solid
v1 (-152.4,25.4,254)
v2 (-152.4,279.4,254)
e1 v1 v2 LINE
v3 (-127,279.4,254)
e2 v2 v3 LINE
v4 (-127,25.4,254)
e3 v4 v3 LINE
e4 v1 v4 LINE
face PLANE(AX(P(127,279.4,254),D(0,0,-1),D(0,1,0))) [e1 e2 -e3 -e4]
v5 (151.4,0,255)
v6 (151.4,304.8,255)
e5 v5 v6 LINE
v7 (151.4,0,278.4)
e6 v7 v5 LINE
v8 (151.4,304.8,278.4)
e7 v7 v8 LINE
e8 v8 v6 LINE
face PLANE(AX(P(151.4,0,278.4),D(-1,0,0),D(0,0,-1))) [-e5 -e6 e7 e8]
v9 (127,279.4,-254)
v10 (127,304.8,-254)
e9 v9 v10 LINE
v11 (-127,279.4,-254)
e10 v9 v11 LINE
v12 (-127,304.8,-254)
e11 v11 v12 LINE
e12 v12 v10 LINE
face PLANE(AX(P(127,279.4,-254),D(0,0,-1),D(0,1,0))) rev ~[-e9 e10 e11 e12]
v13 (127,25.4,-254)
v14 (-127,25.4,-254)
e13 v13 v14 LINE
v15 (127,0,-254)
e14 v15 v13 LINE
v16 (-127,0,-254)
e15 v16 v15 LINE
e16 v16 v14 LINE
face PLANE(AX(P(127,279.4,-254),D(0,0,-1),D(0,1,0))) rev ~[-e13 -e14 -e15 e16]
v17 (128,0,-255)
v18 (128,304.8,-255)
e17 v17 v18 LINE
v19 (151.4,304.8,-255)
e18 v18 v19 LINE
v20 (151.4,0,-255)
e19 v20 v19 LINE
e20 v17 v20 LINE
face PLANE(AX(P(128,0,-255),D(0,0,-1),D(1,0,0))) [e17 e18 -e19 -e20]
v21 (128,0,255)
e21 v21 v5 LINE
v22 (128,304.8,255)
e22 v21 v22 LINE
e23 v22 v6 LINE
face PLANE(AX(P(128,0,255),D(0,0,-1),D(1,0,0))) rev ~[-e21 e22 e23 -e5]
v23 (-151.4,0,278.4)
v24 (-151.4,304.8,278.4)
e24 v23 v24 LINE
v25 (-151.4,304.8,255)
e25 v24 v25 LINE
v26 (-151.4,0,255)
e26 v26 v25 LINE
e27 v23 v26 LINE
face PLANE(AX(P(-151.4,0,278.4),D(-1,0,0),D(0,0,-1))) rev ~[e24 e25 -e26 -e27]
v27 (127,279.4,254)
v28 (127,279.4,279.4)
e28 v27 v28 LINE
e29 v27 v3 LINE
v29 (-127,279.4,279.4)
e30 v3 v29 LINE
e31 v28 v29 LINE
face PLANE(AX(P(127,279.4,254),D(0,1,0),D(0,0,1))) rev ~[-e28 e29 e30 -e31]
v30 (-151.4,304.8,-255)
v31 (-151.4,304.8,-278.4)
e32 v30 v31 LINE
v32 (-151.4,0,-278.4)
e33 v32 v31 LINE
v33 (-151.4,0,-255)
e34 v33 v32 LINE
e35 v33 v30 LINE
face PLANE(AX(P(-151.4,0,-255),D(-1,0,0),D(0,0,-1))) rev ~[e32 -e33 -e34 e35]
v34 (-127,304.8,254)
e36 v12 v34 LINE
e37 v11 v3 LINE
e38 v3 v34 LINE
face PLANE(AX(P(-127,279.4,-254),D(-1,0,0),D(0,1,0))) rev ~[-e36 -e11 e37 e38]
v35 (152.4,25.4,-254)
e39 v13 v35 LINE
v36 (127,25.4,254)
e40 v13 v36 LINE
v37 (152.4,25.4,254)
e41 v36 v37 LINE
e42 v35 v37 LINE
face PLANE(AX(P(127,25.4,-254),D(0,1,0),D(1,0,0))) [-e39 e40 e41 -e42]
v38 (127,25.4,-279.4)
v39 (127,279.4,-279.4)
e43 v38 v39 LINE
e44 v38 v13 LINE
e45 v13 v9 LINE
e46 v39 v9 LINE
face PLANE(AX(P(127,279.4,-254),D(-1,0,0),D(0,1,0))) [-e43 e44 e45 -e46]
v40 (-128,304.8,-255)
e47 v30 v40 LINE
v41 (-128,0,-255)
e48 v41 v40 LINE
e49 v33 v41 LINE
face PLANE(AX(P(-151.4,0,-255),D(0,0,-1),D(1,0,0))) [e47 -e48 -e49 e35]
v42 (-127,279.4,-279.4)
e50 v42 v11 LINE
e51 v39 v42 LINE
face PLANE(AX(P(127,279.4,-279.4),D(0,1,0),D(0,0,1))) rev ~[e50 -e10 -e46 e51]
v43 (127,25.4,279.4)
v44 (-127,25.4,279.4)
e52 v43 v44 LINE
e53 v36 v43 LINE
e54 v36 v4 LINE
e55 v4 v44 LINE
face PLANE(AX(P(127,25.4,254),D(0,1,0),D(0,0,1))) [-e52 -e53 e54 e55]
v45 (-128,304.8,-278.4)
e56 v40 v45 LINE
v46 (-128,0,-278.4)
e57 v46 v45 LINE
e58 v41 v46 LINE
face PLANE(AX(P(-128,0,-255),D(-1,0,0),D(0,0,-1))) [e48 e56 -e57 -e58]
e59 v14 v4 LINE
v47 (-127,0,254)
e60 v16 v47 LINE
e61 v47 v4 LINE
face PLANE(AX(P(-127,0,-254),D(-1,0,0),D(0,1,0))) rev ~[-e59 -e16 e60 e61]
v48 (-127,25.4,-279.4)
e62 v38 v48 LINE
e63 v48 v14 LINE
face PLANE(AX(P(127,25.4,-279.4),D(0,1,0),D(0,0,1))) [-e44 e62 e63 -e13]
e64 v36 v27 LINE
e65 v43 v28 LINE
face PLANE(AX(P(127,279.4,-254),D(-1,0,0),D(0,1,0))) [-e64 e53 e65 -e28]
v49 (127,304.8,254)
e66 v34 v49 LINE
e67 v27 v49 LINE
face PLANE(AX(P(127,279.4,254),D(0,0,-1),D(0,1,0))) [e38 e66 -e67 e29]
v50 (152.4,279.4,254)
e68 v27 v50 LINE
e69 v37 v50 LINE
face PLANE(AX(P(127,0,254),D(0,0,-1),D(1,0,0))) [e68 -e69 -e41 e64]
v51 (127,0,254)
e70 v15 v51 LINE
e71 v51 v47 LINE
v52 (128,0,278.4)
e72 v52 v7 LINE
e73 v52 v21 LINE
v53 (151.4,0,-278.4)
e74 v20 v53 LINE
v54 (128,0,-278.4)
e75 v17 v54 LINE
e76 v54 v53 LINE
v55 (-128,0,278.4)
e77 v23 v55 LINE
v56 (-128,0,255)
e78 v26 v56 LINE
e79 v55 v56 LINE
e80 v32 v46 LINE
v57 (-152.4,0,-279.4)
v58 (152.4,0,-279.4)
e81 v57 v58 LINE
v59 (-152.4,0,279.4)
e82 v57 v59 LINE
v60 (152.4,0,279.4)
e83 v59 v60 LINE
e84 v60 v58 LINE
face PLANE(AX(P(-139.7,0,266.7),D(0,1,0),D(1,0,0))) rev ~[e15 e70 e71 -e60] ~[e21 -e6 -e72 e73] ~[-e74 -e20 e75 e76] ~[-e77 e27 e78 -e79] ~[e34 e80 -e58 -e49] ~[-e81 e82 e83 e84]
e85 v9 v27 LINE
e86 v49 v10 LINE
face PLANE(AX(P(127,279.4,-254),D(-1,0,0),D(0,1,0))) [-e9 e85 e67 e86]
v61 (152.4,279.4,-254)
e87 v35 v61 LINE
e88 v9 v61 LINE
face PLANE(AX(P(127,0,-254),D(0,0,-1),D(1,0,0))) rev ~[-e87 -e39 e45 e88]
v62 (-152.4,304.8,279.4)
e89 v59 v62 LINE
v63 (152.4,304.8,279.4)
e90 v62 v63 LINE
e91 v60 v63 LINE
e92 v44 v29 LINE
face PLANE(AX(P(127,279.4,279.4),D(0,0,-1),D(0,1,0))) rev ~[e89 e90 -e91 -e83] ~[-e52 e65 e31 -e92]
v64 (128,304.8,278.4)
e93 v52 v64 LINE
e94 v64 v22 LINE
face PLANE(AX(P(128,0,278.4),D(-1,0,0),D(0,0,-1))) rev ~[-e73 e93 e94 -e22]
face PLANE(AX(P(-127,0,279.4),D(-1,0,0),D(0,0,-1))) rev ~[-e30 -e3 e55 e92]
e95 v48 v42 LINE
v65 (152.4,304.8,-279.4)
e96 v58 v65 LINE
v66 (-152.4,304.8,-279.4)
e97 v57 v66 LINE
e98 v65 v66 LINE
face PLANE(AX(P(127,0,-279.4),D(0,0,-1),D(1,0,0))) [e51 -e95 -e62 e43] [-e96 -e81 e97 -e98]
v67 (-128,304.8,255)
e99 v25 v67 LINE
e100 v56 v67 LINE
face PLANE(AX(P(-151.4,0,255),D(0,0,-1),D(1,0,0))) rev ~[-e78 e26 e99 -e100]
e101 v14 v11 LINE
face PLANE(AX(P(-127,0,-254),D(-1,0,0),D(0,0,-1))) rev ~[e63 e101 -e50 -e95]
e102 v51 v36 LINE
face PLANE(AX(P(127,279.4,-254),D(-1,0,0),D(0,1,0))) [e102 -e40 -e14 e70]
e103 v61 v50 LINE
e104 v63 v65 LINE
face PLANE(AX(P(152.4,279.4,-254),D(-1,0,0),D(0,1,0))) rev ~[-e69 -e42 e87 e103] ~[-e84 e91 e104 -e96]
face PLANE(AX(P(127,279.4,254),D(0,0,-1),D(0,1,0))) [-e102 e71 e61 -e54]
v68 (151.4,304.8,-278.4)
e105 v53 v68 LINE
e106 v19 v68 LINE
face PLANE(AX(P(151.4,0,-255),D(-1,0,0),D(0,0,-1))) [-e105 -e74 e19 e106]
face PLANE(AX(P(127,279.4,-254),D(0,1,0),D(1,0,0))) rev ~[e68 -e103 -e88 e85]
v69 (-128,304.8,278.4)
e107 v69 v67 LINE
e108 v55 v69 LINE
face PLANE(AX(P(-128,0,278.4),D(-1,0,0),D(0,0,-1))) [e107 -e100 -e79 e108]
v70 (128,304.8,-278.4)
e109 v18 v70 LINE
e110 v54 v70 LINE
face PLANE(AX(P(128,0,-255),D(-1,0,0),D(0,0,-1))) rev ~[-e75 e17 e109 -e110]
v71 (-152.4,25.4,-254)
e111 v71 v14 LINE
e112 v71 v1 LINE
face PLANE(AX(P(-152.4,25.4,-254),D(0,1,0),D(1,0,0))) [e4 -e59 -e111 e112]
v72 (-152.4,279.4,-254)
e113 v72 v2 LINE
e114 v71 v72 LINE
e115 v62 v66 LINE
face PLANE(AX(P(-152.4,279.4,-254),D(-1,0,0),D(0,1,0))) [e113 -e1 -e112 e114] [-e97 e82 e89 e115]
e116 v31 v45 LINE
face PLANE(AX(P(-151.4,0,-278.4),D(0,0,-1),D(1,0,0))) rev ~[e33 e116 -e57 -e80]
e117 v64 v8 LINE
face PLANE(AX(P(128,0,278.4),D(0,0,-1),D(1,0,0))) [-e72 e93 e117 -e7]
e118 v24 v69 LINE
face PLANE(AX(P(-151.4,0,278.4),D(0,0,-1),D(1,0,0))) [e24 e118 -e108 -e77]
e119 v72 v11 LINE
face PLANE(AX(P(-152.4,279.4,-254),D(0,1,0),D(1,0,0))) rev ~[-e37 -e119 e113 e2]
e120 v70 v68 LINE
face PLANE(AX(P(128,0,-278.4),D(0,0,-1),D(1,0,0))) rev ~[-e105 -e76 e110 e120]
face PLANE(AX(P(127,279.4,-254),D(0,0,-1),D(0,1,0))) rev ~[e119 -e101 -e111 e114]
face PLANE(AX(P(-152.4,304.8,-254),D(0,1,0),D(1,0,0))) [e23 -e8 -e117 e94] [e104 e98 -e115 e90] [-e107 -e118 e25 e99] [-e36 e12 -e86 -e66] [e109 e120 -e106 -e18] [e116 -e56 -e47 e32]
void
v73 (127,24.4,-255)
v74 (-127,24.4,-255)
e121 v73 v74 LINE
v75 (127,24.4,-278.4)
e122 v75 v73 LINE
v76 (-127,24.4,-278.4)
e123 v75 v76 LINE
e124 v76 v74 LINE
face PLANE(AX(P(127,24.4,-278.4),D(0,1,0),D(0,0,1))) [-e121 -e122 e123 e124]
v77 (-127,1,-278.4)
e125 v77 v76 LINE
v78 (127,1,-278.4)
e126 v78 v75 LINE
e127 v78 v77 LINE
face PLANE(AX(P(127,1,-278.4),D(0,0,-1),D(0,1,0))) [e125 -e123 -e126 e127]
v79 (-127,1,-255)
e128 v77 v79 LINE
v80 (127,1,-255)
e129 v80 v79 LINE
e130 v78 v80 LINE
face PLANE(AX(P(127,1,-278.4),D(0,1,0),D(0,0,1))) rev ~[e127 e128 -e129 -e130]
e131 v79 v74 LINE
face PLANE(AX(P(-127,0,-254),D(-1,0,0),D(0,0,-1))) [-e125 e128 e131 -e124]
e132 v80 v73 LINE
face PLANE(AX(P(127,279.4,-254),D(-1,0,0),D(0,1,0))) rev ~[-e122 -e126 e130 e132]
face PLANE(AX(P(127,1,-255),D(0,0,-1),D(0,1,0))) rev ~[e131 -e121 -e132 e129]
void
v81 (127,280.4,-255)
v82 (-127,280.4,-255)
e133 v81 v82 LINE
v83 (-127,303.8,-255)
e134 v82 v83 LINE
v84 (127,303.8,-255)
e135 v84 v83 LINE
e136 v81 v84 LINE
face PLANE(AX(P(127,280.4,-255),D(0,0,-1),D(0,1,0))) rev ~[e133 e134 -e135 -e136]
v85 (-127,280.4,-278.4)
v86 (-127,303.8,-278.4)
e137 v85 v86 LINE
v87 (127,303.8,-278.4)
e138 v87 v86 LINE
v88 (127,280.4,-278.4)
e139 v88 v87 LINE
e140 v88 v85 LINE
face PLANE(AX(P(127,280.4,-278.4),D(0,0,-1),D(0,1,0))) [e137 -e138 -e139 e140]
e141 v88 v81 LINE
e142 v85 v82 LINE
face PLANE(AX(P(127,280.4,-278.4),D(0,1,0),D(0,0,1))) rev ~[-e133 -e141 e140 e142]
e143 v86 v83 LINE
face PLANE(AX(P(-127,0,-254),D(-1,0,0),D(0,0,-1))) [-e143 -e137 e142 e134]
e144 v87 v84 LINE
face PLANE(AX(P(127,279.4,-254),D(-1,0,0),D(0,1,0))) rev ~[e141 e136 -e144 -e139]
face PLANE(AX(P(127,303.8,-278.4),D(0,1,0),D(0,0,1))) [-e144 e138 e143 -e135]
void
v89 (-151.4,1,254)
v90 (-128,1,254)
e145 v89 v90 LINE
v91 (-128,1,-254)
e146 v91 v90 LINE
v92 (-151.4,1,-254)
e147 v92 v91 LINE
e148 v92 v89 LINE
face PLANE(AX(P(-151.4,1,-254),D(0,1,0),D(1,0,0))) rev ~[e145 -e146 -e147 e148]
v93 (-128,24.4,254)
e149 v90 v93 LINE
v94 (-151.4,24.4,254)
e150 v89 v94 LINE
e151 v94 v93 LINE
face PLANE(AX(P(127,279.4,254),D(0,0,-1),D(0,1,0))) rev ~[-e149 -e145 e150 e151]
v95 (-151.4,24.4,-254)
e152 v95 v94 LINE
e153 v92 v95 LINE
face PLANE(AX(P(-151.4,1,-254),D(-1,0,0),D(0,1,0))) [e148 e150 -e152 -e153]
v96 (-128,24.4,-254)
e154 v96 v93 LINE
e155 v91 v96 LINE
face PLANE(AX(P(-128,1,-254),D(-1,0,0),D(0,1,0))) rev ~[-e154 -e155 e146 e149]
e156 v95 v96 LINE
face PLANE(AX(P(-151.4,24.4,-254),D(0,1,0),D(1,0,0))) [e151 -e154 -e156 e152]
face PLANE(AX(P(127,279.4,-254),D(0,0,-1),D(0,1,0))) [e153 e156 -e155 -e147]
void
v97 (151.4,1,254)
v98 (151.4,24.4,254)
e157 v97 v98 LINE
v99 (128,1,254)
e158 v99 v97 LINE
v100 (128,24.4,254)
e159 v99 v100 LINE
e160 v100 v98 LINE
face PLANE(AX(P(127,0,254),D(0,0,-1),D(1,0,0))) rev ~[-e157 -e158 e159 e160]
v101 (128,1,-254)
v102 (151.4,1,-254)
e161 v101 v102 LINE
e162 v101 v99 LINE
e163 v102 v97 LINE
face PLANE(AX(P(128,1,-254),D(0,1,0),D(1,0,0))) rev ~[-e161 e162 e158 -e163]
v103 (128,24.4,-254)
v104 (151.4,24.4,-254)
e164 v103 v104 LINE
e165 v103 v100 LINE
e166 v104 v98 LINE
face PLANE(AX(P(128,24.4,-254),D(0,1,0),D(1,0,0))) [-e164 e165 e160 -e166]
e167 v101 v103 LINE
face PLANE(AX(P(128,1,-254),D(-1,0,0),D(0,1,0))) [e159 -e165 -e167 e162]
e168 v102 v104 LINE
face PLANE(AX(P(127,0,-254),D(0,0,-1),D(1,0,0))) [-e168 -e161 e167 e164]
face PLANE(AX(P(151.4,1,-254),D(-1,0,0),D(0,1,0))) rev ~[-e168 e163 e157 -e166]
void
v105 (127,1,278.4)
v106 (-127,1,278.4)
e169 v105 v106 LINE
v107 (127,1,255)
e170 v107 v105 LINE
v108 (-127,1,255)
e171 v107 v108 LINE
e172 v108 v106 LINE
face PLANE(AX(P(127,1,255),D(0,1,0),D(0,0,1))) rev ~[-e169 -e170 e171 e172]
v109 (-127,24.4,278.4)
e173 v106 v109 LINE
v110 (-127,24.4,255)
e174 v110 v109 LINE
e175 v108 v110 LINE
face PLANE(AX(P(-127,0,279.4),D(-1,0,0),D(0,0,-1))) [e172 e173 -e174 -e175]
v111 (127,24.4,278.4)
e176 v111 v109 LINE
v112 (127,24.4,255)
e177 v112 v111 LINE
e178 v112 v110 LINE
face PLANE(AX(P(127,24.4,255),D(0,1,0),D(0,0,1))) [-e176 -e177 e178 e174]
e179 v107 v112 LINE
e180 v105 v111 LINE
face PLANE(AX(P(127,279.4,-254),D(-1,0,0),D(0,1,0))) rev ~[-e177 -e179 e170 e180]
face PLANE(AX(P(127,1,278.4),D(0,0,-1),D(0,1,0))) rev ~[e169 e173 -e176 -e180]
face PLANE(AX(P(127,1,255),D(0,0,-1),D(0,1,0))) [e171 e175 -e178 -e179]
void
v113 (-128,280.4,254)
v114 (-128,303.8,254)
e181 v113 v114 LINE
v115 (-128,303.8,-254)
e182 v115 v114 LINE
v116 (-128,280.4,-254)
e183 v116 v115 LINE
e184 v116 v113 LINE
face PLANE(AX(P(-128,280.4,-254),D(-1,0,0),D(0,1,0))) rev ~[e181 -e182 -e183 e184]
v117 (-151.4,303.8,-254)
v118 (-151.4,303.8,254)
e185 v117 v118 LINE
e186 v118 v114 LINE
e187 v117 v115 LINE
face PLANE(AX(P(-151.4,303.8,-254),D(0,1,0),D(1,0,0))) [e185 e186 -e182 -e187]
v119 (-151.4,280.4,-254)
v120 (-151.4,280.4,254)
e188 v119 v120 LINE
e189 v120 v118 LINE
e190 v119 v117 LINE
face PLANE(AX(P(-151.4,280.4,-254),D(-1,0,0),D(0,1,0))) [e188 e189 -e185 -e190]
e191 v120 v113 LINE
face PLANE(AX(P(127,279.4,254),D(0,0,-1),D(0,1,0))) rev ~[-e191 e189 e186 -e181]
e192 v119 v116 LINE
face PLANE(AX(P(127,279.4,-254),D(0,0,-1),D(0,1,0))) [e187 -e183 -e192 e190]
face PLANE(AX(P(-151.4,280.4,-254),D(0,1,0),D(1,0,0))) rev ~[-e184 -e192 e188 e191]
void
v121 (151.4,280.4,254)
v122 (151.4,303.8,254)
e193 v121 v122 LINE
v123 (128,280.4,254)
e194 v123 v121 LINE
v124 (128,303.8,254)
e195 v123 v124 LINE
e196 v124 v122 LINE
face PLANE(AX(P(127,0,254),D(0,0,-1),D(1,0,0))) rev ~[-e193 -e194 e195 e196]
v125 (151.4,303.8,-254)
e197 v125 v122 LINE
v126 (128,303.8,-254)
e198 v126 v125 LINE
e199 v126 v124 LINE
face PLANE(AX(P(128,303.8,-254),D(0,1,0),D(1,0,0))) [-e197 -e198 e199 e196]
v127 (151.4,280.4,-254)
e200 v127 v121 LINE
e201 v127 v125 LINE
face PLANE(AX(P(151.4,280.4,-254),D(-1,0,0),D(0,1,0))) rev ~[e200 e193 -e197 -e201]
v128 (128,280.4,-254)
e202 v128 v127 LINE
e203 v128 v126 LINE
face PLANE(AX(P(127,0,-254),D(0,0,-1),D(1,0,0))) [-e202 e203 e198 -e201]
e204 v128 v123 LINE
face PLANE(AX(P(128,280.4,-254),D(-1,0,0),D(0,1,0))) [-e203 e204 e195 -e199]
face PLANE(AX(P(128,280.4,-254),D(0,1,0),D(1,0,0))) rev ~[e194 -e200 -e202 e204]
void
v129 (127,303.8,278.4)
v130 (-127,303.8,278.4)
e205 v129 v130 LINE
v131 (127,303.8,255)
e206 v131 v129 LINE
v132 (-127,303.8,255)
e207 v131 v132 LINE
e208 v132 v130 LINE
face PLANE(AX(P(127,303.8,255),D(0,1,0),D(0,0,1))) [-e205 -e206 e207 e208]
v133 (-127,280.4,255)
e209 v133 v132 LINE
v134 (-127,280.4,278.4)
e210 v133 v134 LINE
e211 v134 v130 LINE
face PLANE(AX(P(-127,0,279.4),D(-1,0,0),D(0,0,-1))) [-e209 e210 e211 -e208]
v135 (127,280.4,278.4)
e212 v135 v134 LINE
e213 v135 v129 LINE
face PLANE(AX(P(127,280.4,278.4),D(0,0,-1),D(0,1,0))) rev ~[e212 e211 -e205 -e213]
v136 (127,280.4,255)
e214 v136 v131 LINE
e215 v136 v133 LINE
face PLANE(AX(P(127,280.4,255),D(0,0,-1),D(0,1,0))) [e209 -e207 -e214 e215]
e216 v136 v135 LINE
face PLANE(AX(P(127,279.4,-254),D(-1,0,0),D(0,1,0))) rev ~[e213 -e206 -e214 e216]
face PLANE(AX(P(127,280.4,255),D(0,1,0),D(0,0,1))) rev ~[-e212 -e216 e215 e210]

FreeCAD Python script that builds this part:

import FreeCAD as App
import Part
import Sketcher
Q = App.Units.Quantity

doc = App.newDocument("Part")
params = doc.addObject("Spreadsheet::Sheet", "Params")
for row, (alias, value) in enumerate([
    ("sketch1_width", "1 in"),
    ("pad1_length", "12 in"),
    ("sketch2_width", "1 in"),
    ("pad2_length", "12 in"),
    ("sketch3_width", "1 in"),
    ("pad3_length", "12 in"),
    ("sketch4_width", "1 in"),
    ("pad4_length", "12 in"),
    ("sketch5_width", "1 in"),
    ("pad5_length", "20 in"),
    ("sketch6_width", "1 in"),
    ("pad6_length", "10 in"),
    ("linearpattern_pitch", "11 in"),
], start=1):
    params.set(f"A{row}", alias)
    params.set(f"B{row}", "=" + value)
    params.setAlias(f"B{row}", alias)

body = doc.addObject("PartDesign::Body", "Body")

# Sketch on XZ plane
sketch1 = body.newObject("Sketcher::SketchObject", "Sketch")
sketch1.AttachmentSupport = (doc.getObject("XZ_Plane"), [""])
sketch1.MapMode = "FlatFace"
sketch1.addGeometry(Part.LineSegment(App.Vector(127, -279.4, 0), App.Vector(127, -254, 0)), False)
sketch1.addGeometry(Part.LineSegment(App.Vector(127, -254, 0), App.Vector(152.4, -254, 0)), False)
sketch1.addGeometry(Part.LineSegment(App.Vector(152.4, -254, 0), App.Vector(152.4, -279.4, 0)), False)
sketch1.addGeometry(Part.LineSegment(App.Vector(152.4, -279.4, 0), App.Vector(127, -279.4, 0)), False)
sketch1.addGeometry(Part.LineSegment(App.Vector(151.4, -255, 0), App.Vector(128, -255, 0)), False)
sketch1.addGeometry(Part.LineSegment(App.Vector(128, -255, 0), App.Vector(128, -278.4, 0)), False)
sketch1.addGeometry(Part.LineSegment(App.Vector(128, -278.4, 0), App.Vector(151.4, -278.4, 0)), False)
sketch1.addGeometry(Part.LineSegment(App.Vector(151.4, -278.4, 0), App.Vector(151.4, -255, 0)), False)
sketch1.addConstraint(Sketcher.Constraint("Coincident", 0, 2, 1, 1))
sketch1.addConstraint(Sketcher.Constraint("Coincident", 1, 2, 2, 1))
sketch1.addConstraint(Sketcher.Constraint("Coincident", 2, 2, 3, 1))
sketch1.addConstraint(Sketcher.Constraint("Coincident", 3, 2, 0, 1))
sketch1.addConstraint(Sketcher.Constraint("Coincident", 4, 2, 5, 1))
sketch1.addConstraint(Sketcher.Constraint("Coincident", 5, 2, 6, 1))
sketch1.addConstraint(Sketcher.Constraint("Coincident", 6, 2, 7, 1))
sketch1.addConstraint(Sketcher.Constraint("Coincident", 7, 2, 4, 1))
sketch1.addConstraint(Sketcher.Constraint("Vertical", 0))
sketch1.addConstraint(Sketcher.Constraint("Horizontal", 1))
sketch1.addConstraint(Sketcher.Constraint("Vertical", 2))
sketch1.addConstraint(Sketcher.Constraint("Horizontal", 3))
sketch1.addConstraint(Sketcher.Constraint("Horizontal", 4))
sketch1.addConstraint(Sketcher.Constraint("Vertical", 5))
sketch1.addConstraint(Sketcher.Constraint("Horizontal", 6))
sketch1.addConstraint(Sketcher.Constraint("Vertical", 7))
sketch1.addConstraint(Sketcher.Constraint("Equal", 3, 0))
sketch1.addConstraint(Sketcher.Constraint("Equal", 6, 5))
sketch1.addConstraint(Sketcher.Constraint("DistanceX", 1, 1, 1, 2, Q("1 in")))
sketch1.addConstraint(Sketcher.Constraint("DistanceX", -1, 1, 0, 2, Q("5 in")))
sketch1.addConstraint(Sketcher.Constraint("DistanceY", 0, 2, -1, 1, Q("10 in")))
sketch1.addConstraint(Sketcher.Constraint("DistanceX", 4, 2, 4, 1, Q("23.4 mm")))
sketch1.addConstraint(Sketcher.Constraint("DistanceX", -1, 1, 4, 2, Q("128 mm")))
sketch1.addConstraint(Sketcher.Constraint("DistanceY", 4, 2, -1, 1, Q("255 mm")))
sketch1.setExpression("Constraints[18]", "Params.sketch1_width")
pad1 = body.newObject("PartDesign::Pad", "Pad")
pad1.Profile = sketch1
pad1.setExpression("Length", "Params.pad1_length")
pad1.Reversed = True
body2 = doc.addObject("PartDesign::Body", "Body001")

# Sketch on XZ plane
sketch2 = body2.newObject("Sketcher::SketchObject", "Sketch001")
sketch2.AttachmentSupport = (doc.getObject("XZ_Plane001"), [""])
sketch2.MapMode = "FlatFace"
sketch2.addGeometry(Part.LineSegment(App.Vector(127, 254, 0), App.Vector(127, 279.4, 0)), False)
sketch2.addGeometry(Part.LineSegment(App.Vector(127, 279.4, 0), App.Vector(152.4, 279.4, 0)), False)
sketch2.addGeometry(Part.LineSegment(App.Vector(152.4, 279.4, 0), App.Vector(152.4, 254, 0)), False)
sketch2.addGeometry(Part.LineSegment(App.Vector(152.4, 254, 0), App.Vector(127, 254, 0)), False)
sketch2.addGeometry(Part.LineSegment(App.Vector(151.4, 278.4, 0), App.Vector(128, 278.4, 0)), False)
sketch2.addGeometry(Part.LineSegment(App.Vector(128, 278.4, 0), App.Vector(128, 255, 0)), False)
sketch2.addGeometry(Part.LineSegment(App.Vector(128, 255, 0), App.Vector(151.4, 255, 0)), False)
sketch2.addGeometry(Part.LineSegment(App.Vector(151.4, 255, 0), App.Vector(151.4, 278.4, 0)), False)
sketch2.addConstraint(Sketcher.Constraint("Coincident", 0, 2, 1, 1))
sketch2.addConstraint(Sketcher.Constraint("Coincident", 1, 2, 2, 1))
sketch2.addConstraint(Sketcher.Constraint("Coincident", 2, 2, 3, 1))
sketch2.addConstraint(Sketcher.Constraint("Coincident", 3, 2, 0, 1))
sketch2.addConstraint(Sketcher.Constraint("Coincident", 4, 2, 5, 1))
sketch2.addConstraint(Sketcher.Constraint("Coincident", 5, 2, 6, 1))
sketch2.addConstraint(Sketcher.Constraint("Coincident", 6, 2, 7, 1))
sketch2.addConstraint(Sketcher.Constraint("Coincident", 7, 2, 4, 1))
sketch2.addConstraint(Sketcher.Constraint("Vertical", 0))
sketch2.addConstraint(Sketcher.Constraint("Horizontal", 1))
sketch2.addConstraint(Sketcher.Constraint("Vertical", 2))
sketch2.addConstraint(Sketcher.Constraint("Horizontal", 3))
sketch2.addConstraint(Sketcher.Constraint("Horizontal", 4))
sketch2.addConstraint(Sketcher.Constraint("Vertical", 5))
sketch2.addConstraint(Sketcher.Constraint("Horizontal", 6))
sketch2.addConstraint(Sketcher.Constraint("Vertical", 7))
sketch2.addConstraint(Sketcher.Constraint("Equal", 3, 0))
sketch2.addConstraint(Sketcher.Constraint("Equal", 6, 5))
sketch2.addConstraint(Sketcher.Constraint("DistanceX", 1, 1, 1, 2, Q("1 in")))
sketch2.addConstraint(Sketcher.Constraint("DistanceX", -1, 1, 0, 2, Q("5 in")))
sketch2.addConstraint(Sketcher.Constraint("DistanceY", -1, 1, 0, 2, Q("11 in")))
sketch2.addConstraint(Sketcher.Constraint("DistanceX", 4, 2, 4, 1, Q("23.4 mm")))
sketch2.addConstraint(Sketcher.Constraint("DistanceX", -1, 1, 4, 2, Q("128 mm")))
sketch2.addConstraint(Sketcher.Constraint("DistanceY", -1, 1, 4, 2, Q("278.4 mm")))
sketch2.setExpression("Constraints[18]", "Params.sketch2_width")
pad2 = body2.newObject("PartDesign::Pad", "Pad001")
pad2.Profile = sketch2
pad2.setExpression("Length", "Params.pad2_length")
pad2.Reversed = True
body3 = doc.addObject("PartDesign::Body", "Body002")

# Sketch on XZ plane
sketch3 = body3.newObject("Sketcher::SketchObject", "Sketch002")
sketch3.AttachmentSupport = (doc.getObject("XZ_Plane002"), [""])
sketch3.MapMode = "FlatFace"
sketch3.addGeometry(Part.LineSegment(App.Vector(-152.4, 254, 0), App.Vector(-152.4, 279.4, 0)), False)
sketch3.addGeometry(Part.LineSegment(App.Vector(-152.4, 279.4, 0), App.Vector(-127, 279.4, 0)), False)
sketch3.addGeometry(Part.LineSegment(App.Vector(-127, 279.4, 0), App.Vector(-127, 254, 0)), False)
sketch3.addGeometry(Part.LineSegment(App.Vector(-127, 254, 0), App.Vector(-152.4, 254, 0)), False)
sketch3.addGeometry(Part.LineSegment(App.Vector(-128, 278.4, 0), App.Vector(-151.4, 278.4, 0)), False)
sketch3.addGeometry(Part.LineSegment(App.Vector(-151.4, 278.4, 0), App.Vector(-151.4, 255, 0)), False)
sketch3.addGeometry(Part.LineSegment(App.Vector(-151.4, 255, 0), App.Vector(-128, 255, 0)), False)
sketch3.addGeometry(Part.LineSegment(App.Vector(-128, 255, 0), App.Vector(-128, 278.4, 0)), False)
sketch3.addConstraint(Sketcher.Constraint("Coincident", 0, 2, 1, 1))
sketch3.addConstraint(Sketcher.Constraint("Coincident", 1, 2, 2, 1))
sketch3.addConstraint(Sketcher.Constraint("Coincident", 2, 2, 3, 1))
sketch3.addConstraint(Sketcher.Constraint("Coincident", 3, 2, 0, 1))
sketch3.addConstraint(Sketcher.Constraint("Coincident", 4, 2, 5, 1))
sketch3.addConstraint(Sketcher.Constraint("Coincident", 5, 2, 6, 1))
sketch3.addConstraint(Sketcher.Constraint("Coincident", 6, 2, 7, 1))
sketch3.addConstraint(Sketcher.Constraint("Coincident", 7, 2, 4, 1))
sketch3.addConstraint(Sketcher.Constraint("Vertical", 0))
sketch3.addConstraint(Sketcher.Constraint("Horizontal", 1))
sketch3.addConstraint(Sketcher.Constraint("Vertical", 2))
sketch3.addConstraint(Sketcher.Constraint("Horizontal", 3))
sketch3.addConstraint(Sketcher.Constraint("Horizontal", 4))
sketch3.addConstraint(Sketcher.Constraint("Vertical", 5))
sketch3.addConstraint(Sketcher.Constraint("Horizontal", 6))
sketch3.addConstraint(Sketcher.Constraint("Vertical", 7))
sketch3.addConstraint(Sketcher.Constraint("Equal", 3, 0))
sketch3.addConstraint(Sketcher.Constraint("Equal", 6, 5))
sketch3.addConstraint(Sketcher.Constraint("DistanceX", 1, 1, 1, 2, Q("1 in")))
sketch3.addConstraint(Sketcher.Constraint("DistanceX", 0, 2, -1, 1, Q("6 in")))
sketch3.addConstraint(Sketcher.Constraint("DistanceY", -1, 1, 0, 2, Q("11 in")))
sketch3.addConstraint(Sketcher.Constraint("DistanceX", 4, 2, 4, 1, Q("23.4 mm")))
sketch3.addConstraint(Sketcher.Constraint("DistanceX", 4, 2, -1, 1, Q("151.4 mm")))
sketch3.addConstraint(Sketcher.Constraint("DistanceY", -1, 1, 4, 2, Q("278.4 mm")))
sketch3.setExpression("Constraints[18]", "Params.sketch3_width")
pad3 = body3.newObject("PartDesign::Pad", "Pad002")
pad3.Profile = sketch3
pad3.setExpression("Length", "Params.pad3_length")
pad3.Reversed = True
body4 = doc.addObject("PartDesign::Body", "Body003")

# Sketch on XZ plane
sketch4 = body4.newObject("Sketcher::SketchObject", "Sketch003")
sketch4.AttachmentSupport = (doc.getObject("XZ_Plane003"), [""])
sketch4.MapMode = "FlatFace"
sketch4.addGeometry(Part.LineSegment(App.Vector(-152.4, -279.4, 0), App.Vector(-152.4, -254, 0)), False)
sketch4.addGeometry(Part.LineSegment(App.Vector(-152.4, -254, 0), App.Vector(-127, -254, 0)), False)
sketch4.addGeometry(Part.LineSegment(App.Vector(-127, -254, 0), App.Vector(-127, -279.4, 0)), False)
sketch4.addGeometry(Part.LineSegment(App.Vector(-127, -279.4, 0), App.Vector(-152.4, -279.4, 0)), False)
sketch4.addGeometry(Part.LineSegment(App.Vector(-128, -255, 0), App.Vector(-151.4, -255, 0)), False)
sketch4.addGeometry(Part.LineSegment(App.Vector(-151.4, -255, 0), App.Vector(-151.4, -278.4, 0)), False)
sketch4.addGeometry(Part.LineSegment(App.Vector(-151.4, -278.4, 0), App.Vector(-128, -278.4, 0)), False)
sketch4.addGeometry(Part.LineSegment(App.Vector(-128, -278.4, 0), App.Vector(-128, -255, 0)), False)
sketch4.addConstraint(Sketcher.Constraint("Coincident", 0, 2, 1, 1))
sketch4.addConstraint(Sketcher.Constraint("Coincident", 1, 2, 2, 1))
sketch4.addConstraint(Sketcher.Constraint("Coincident", 2, 2, 3, 1))
sketch4.addConstraint(Sketcher.Constraint("Coincident", 3, 2, 0, 1))
sketch4.addConstraint(Sketcher.Constraint("Coincident", 4, 2, 5, 1))
sketch4.addConstraint(Sketcher.Constraint("Coincident", 5, 2, 6, 1))
sketch4.addConstraint(Sketcher.Constraint("Coincident", 6, 2, 7, 1))
sketch4.addConstraint(Sketcher.Constraint("Coincident", 7, 2, 4, 1))
sketch4.addConstraint(Sketcher.Constraint("Vertical", 0))
sketch4.addConstraint(Sketcher.Constraint("Horizontal", 1))
sketch4.addConstraint(Sketcher.Constraint("Vertical", 2))
sketch4.addConstraint(Sketcher.Constraint("Horizontal", 3))
sketch4.addConstraint(Sketcher.Constraint("Horizontal", 4))
sketch4.addConstraint(Sketcher.Constraint("Vertical", 5))
sketch4.addConstraint(Sketcher.Constraint("Horizontal", 6))
sketch4.addConstraint(Sketcher.Constraint("Vertical", 7))
sketch4.addConstraint(Sketcher.Constraint("Equal", 3, 0))
sketch4.addConstraint(Sketcher.Constraint("Equal", 6, 5))
sketch4.addConstraint(Sketcher.Constraint("DistanceX", 1, 1, 1, 2, Q("1 in")))
sketch4.addConstraint(Sketcher.Constraint("DistanceX", 0, 2, -1, 1, Q("6 in")))
sketch4.addConstraint(Sketcher.Constraint("DistanceY", 0, 2, -1, 1, Q("10 in")))
sketch4.addConstraint(Sketcher.Constraint("DistanceX", 4, 2, 4, 1, Q("23.4 mm")))
sketch4.addConstraint(Sketcher.Constraint("DistanceX", 4, 2, -1, 1, Q("151.4 mm")))
sketch4.addConstraint(Sketcher.Constraint("DistanceY", 4, 2, -1, 1, Q("255 mm")))
sketch4.setExpression("Constraints[18]", "Params.sketch4_width")
pad4 = body4.newObject("PartDesign::Pad", "Pad003")
pad4.Profile = sketch4
pad4.setExpression("Length", "Params.pad4_length")
pad4.Reversed = True
body.AllowCompound = True
doc.recompute()

boolean = body.newObject("PartDesign::Boolean", "Boolean")
boolean.Type = "Fuse"
boolean.addObjects([body2])

# Sketch on XY plane
sketch5 = body.newObject("Sketcher::SketchObject", "Sketch004")
sketch5.AttachmentSupport = (doc.getObject("XY_Plane"), [""])
sketch5.MapMode = "FlatFace"
sketch5.AttachmentOffset = App.Placement(App.Vector(0, 0, -10 * 25.4), App.Rotation())
sketch5.addGeometry(Part.LineSegment(App.Vector(127, 304.8, 0), App.Vector(127, 279.4, 0)), False)
sketch5.addGeometry(Part.LineSegment(App.Vector(127, 279.4, 0), App.Vector(152.4, 279.4, 0)), False)
sketch5.addGeometry(Part.LineSegment(App.Vector(152.4, 279.4, 0), App.Vector(152.4, 304.8, 0)), False)
sketch5.addGeometry(Part.LineSegment(App.Vector(152.4, 304.8, 0), App.Vector(127, 304.8, 0)), False)
sketch5.addGeometry(Part.LineSegment(App.Vector(151.4, 280.4, 0), App.Vector(128, 280.4, 0)), False)
sketch5.addGeometry(Part.LineSegment(App.Vector(128, 280.4, 0), App.Vector(128, 303.8, 0)), False)
sketch5.addGeometry(Part.LineSegment(App.Vector(128, 303.8, 0), App.Vector(151.4, 303.8, 0)), False)
sketch5.addGeometry(Part.LineSegment(App.Vector(151.4, 303.8, 0), App.Vector(151.4, 280.4, 0)), False)
sketch5.addGeometry(Part.LineSegment(App.Vector(127, 25.4, 0), App.Vector(127, 0, 0)), False)
sketch5.addGeometry(Part.LineSegment(App.Vector(127, 0, 0), App.Vector(152.4, 0, 0)), False)
sketch5.addGeometry(Part.LineSegment(App.Vector(152.4, 0, 0), App.Vector(152.4, 25.4, 0)), False)
sketch5.addGeometry(Part.LineSegment(App.Vector(152.4, 25.4, 0), App.Vector(127, 25.4, 0)), False)
sketch5.addGeometry(Part.LineSegment(App.Vector(151.4, 1, 0), App.Vector(128, 1, 0)), False)
sketch5.addGeometry(Part.LineSegment(App.Vector(128, 1, 0), App.Vector(128, 24.4, 0)), False)
sketch5.addGeometry(Part.LineSegment(App.Vector(128, 24.4, 0), App.Vector(151.4, 24.4, 0)), False)
sketch5.addGeometry(Part.LineSegment(App.Vector(151.4, 24.4, 0), App.Vector(151.4, 1, 0)), False)
sketch5.addConstraint(Sketcher.Constraint("Coincident", 0, 2, 1, 1))
sketch5.addConstraint(Sketcher.Constraint("Coincident", 1, 2, 2, 1))
sketch5.addConstraint(Sketcher.Constraint("Coincident", 2, 2, 3, 1))
sketch5.addConstraint(Sketcher.Constraint("Coincident", 3, 2, 0, 1))
sketch5.addConstraint(Sketcher.Constraint("Coincident", 4, 2, 5, 1))
sketch5.addConstraint(Sketcher.Constraint("Coincident", 5, 2, 6, 1))
sketch5.addConstraint(Sketcher.Constraint("Coincident", 6, 2, 7, 1))
sketch5.addConstraint(Sketcher.Constraint("Coincident", 7, 2, 4, 1))
sketch5.addConstraint(Sketcher.Constraint("Coincident", 8, 2, 9, 1))
sketch5.addConstraint(Sketcher.Constraint("Coincident", 9, 2, 10, 1))
sketch5.addConstraint(Sketcher.Constraint("Coincident", 10, 2, 11, 1))
sketch5.addConstraint(Sketcher.Constraint("Coincident", 11, 2, 8, 1))
sketch5.addConstraint(Sketcher.Constraint("Coincident", 12, 2, 13, 1))
sketch5.addConstraint(Sketcher.Constraint("Coincident", 13, 2, 14, 1))
sketch5.addConstraint(Sketcher.Constraint("Coincident", 14, 2, 15, 1))
sketch5.addConstraint(Sketcher.Constraint("Coincident", 15, 2, 12, 1))
sketch5.addConstraint(Sketcher.Constraint("Vertical", 0))
sketch5.addConstraint(Sketcher.Constraint("Horizontal", 1))
sketch5.addConstraint(Sketcher.Constraint("Vertical", 2))
sketch5.addConstraint(Sketcher.Constraint("Horizontal", 3))
sketch5.addConstraint(Sketcher.Constraint("Horizontal", 4))
sketch5.addConstraint(Sketcher.Constraint("Vertical", 5))
sketch5.addConstraint(Sketcher.Constraint("Horizontal", 6))
sketch5.addConstraint(Sketcher.Constraint("Vertical", 7))
sketch5.addConstraint(Sketcher.Constraint("Vertical", 8))
sketch5.addConstraint(Sketcher.Constraint("Horizontal", 9))
sketch5.addConstraint(Sketcher.Constraint("Vertical", 10))
sketch5.addConstraint(Sketcher.Constraint("Horizontal", 11))
sketch5.addConstraint(Sketcher.Constraint("Horizontal", 12))
sketch5.addConstraint(Sketcher.Constraint("Vertical", 13))
sketch5.addConstraint(Sketcher.Constraint("Horizontal", 14))
sketch5.addConstraint(Sketcher.Constraint("Vertical", 15))
sketch5.addConstraint(Sketcher.Constraint("PointOnObject", 8, 2, -1))
sketch5.addConstraint(Sketcher.Constraint("Vertical", 3, 2, 8, 2))
sketch5.addConstraint(Sketcher.Constraint("Vertical", 2, 2, 9, 2))
sketch5.addConstraint(Sketcher.Constraint("Vertical", 5, 2, 12, 2))
sketch5.addConstraint(Sketcher.Constraint("Vertical", 7, 2, 14, 2))
sketch5.addConstraint(Sketcher.Constraint("Equal", 11, 0))
sketch5.addConstraint(Sketcher.Constraint("Equal", 14, 5))
sketch5.addConstraint(Sketcher.Constraint("Equal", 2, 8))
sketch5.addConstraint(Sketcher.Constraint("Equal", 7, 13))
sketch5.addConstraint(Sketcher.Constraint("DistanceX", 1, 1, 1, 2, Q("1 in")))
sketch5.addConstraint(Sketcher.Constraint("DistanceX", -1, 1, 0, 2, Q("5 in")))
sketch5.addConstraint(Sketcher.Constraint("DistanceY", -1, 1, 0, 2, Q("11 in")))
sketch5.addConstraint(Sketcher.Constraint("DistanceX", 4, 2, 4, 1, Q("23.4 mm")))
sketch5.addConstraint(Sketcher.Constraint("DistanceX", -1, 1, 4, 2, Q("128 mm")))
sketch5.addConstraint(Sketcher.Constraint("DistanceY", -1, 1, 4, 2, Q("280.4 mm")))
sketch5.addConstraint(Sketcher.Constraint("DistanceY", -1, 1, 12, 2, Q("1 mm")))
sketch5.setExpression("Constraints[41]", "Params.sketch5_width")
pad5 = body.newObject("PartDesign::Pad", "Pad004")
pad5.Profile = sketch5
pad5.setExpression("Length", "Params.pad5_length")
doc.recompute()

boolean2 = body.newObject("PartDesign::Boolean", "Boolean001")
boolean2.Type = "Fuse"
boolean2.addObjects([body3])
doc.recompute()

boolean3 = body.newObject("PartDesign::Boolean", "Boolean002")
boolean3.Type = "Fuse"
boolean3.addObjects([body4])

# Sketch on YZ plane
sketch6 = body.newObject("Sketcher::SketchObject", "Sketch005")
sketch6.AttachmentSupport = (doc.getObject("YZ_Plane"), [""])
sketch6.MapMode = "FlatFace"
sketch6.AttachmentOffset = App.Placement(App.Vector(0, 0, 5 * 25.4), App.Rotation())
sketch6.addGeometry(Part.LineSegment(App.Vector(304.8, 254, 0), App.Vector(279.4, 254, 0)), False)
sketch6.addGeometry(Part.LineSegment(App.Vector(279.4, 254, 0), App.Vector(279.4, 279.4, 0)), False)
sketch6.addGeometry(Part.LineSegment(App.Vector(279.4, 279.4, 0), App.Vector(304.8, 279.4, 0)), False)
sketch6.addGeometry(Part.LineSegment(App.Vector(304.8, 279.4, 0), App.Vector(304.8, 254, 0)), False)
sketch6.addGeometry(Part.LineSegment(App.Vector(280.4, 278.4, 0), App.Vector(280.4, 255, 0)), False)
sketch6.addGeometry(Part.LineSegment(App.Vector(280.4, 255, 0), App.Vector(303.8, 255, 0)), False)
sketch6.addGeometry(Part.LineSegment(App.Vector(303.8, 255, 0), App.Vector(303.8, 278.4, 0)), False)
sketch6.addGeometry(Part.LineSegment(App.Vector(303.8, 278.4, 0), App.Vector(280.4, 278.4, 0)), False)
sketch6.addGeometry(Part.LineSegment(App.Vector(304.8, -279.4, 0), App.Vector(279.4, -279.4, 0)), False)
sketch6.addGeometry(Part.LineSegment(App.Vector(279.4, -279.4, 0), App.Vector(279.4, -254, 0)), False)
sketch6.addGeometry(Part.LineSegment(App.Vector(279.4, -254, 0), App.Vector(304.8, -254, 0)), False)
sketch6.addGeometry(Part.LineSegment(App.Vector(304.8, -254, 0), App.Vector(304.8, -279.4, 0)), False)
sketch6.addGeometry(Part.LineSegment(App.Vector(280.4, -255, 0), App.Vector(280.4, -278.4, 0)), False)
sketch6.addGeometry(Part.LineSegment(App.Vector(280.4, -278.4, 0), App.Vector(303.8, -278.4, 0)), False)
sketch6.addGeometry(Part.LineSegment(App.Vector(303.8, -278.4, 0), App.Vector(303.8, -255, 0)), False)
sketch6.addGeometry(Part.LineSegment(App.Vector(303.8, -255, 0), App.Vector(280.4, -255, 0)), False)
sketch6.addGeometry(Part.LineSegment(App.Vector(25.4, 254, 0), App.Vector(0, 254, 0)), False)
sketch6.addGeometry(Part.LineSegment(App.Vector(0, 254, 0), App.Vector(0, 279.4, 0)), False)
sketch6.addGeometry(Part.LineSegment(App.Vector(0, 279.4, 0), App.Vector(25.4, 279.4, 0)), False)
sketch6.addGeometry(Part.LineSegment(App.Vector(25.4, 279.4, 0), App.Vector(25.4, 254, 0)), False)
sketch6.addGeometry(Part.LineSegment(App.Vector(1, 278.4, 0), App.Vector(1, 255, 0)), False)
sketch6.addGeometry(Part.LineSegment(App.Vector(1, 255, 0), App.Vector(24.4, 255, 0)), False)
sketch6.addGeometry(Part.LineSegment(App.Vector(24.4, 255, 0), App.Vector(24.4, 278.4, 0)), False)
sketch6.addGeometry(Part.LineSegment(App.Vector(24.4, 278.4, 0), App.Vector(1, 278.4, 0)), False)
sketch6.addGeometry(Part.LineSegment(App.Vector(25.4, -279.4, 0), App.Vector(0, -279.4, 0)), False)
sketch6.addGeometry(Part.LineSegment(App.Vector(0, -279.4, 0), App.Vector(0, -254, 0)), False)
sketch6.addGeometry(Part.LineSegment(App.Vector(0, -254, 0), App.Vector(25.4, -254, 0)), False)
sketch6.addGeometry(Part.LineSegment(App.Vector(25.4, -254, 0), App.Vector(25.4, -279.4, 0)), False)
sketch6.addGeometry(Part.LineSegment(App.Vector(1, -255, 0), App.Vector(1, -278.4, 0)), False)
sketch6.addGeometry(Part.LineSegment(App.Vector(1, -278.4, 0), App.Vector(24.4, -278.4, 0)), False)
sketch6.addGeometry(Part.LineSegment(App.Vector(24.4, -278.4, 0), App.Vector(24.4, -255, 0)), False)
sketch6.addGeometry(Part.LineSegment(App.Vector(24.4, -255, 0), App.Vector(1, -255, 0)), False)
sketch6.addConstraint(Sketcher.Constraint("Coincident", 0, 2, 1, 1))
sketch6.addConstraint(Sketcher.Constraint("Coincident", 1, 2, 2, 1))
sketch6.addConstraint(Sketcher.Constraint("Coincident", 2, 2, 3, 1))
sketch6.addConstraint(Sketcher.Constraint("Coincident", 3, 2, 0, 1))
sketch6.addConstraint(Sketcher.Constraint("Coincident", 4, 2, 5, 1))
sketch6.addConstraint(Sketcher.Constraint("Coincident", 5, 2, 6, 1))
sketch6.addConstraint(Sketcher.Constraint("Coincident", 6, 2, 7, 1))
sketch6.addConstraint(Sketcher.Constraint("Coincident", 7, 2, 4, 1))
sketch6.addConstraint(Sketcher.Constraint("Coincident", 8, 2, 9, 1))
sketch6.addConstraint(Sketcher.Constraint("Coincident", 9, 2, 10, 1))
sketch6.addConstraint(Sketcher.Constraint("Coincident", 10, 2, 11, 1))
sketch6.addConstraint(Sketcher.Constraint("Coincident", 11, 2, 8, 1))
sketch6.addConstraint(Sketcher.Constraint("Coincident", 12, 2, 13, 1))
sketch6.addConstraint(Sketcher.Constraint("Coincident", 13, 2, 14, 1))
sketch6.addConstraint(Sketcher.Constraint("Coincident", 14, 2, 15, 1))
sketch6.addConstraint(Sketcher.Constraint("Coincident", 15, 2, 12, 1))
sketch6.addConstraint(Sketcher.Constraint("Coincident", 16, 2, 17, 1))
sketch6.addConstraint(Sketcher.Constraint("Coincident", 17, 2, 18, 1))
sketch6.addConstraint(Sketcher.Constraint("Coincident", 18, 2, 19, 1))
sketch6.addConstraint(Sketcher.Constraint("Coincident", 19, 2, 16, 1))
sketch6.addConstraint(Sketcher.Constraint("Coincident", 20, 2, 21, 1))
sketch6.addConstraint(Sketcher.Constraint("Coincident", 21, 2, 22, 1))
sketch6.addConstraint(Sketcher.Constraint("Coincident", 22, 2, 23, 1))
sketch6.addConstraint(Sketcher.Constraint("Coincident", 23, 2, 20, 1))
sketch6.addConstraint(Sketcher.Constraint("Coincident", 24, 2, 25, 1))
sketch6.addConstraint(Sketcher.Constraint("Coincident", 25, 2, 26, 1))
sketch6.addConstraint(Sketcher.Constraint("Coincident", 26, 2, 27, 1))
sketch6.addConstraint(Sketcher.Constraint("Coincident", 27, 2, 24, 1))
sketch6.addConstraint(Sketcher.Constraint("Coincident", 28, 2, 29, 1))
sketch6.addConstraint(Sketcher.Constraint("Coincident", 29, 2, 30, 1))
sketch6.addConstraint(Sketcher.Constraint("Coincident", 30, 2, 31, 1))
sketch6.addConstraint(Sketcher.Constraint("Coincident", 31, 2, 28, 1))
sketch6.addConstraint(Sketcher.Constraint("Horizontal", 0))
sketch6.addConstraint(Sketcher.Constraint("Vertical", 1))
sketch6.addConstraint(Sketcher.Constraint("Horizontal", 2))
sketch6.addConstraint(Sketcher.Constraint("Vertical", 3))
sketch6.addConstraint(Sketcher.Constraint("Vertical", 4))
sketch6.addConstraint(Sketcher.Constraint("Horizontal", 5))
sketch6.addConstraint(Sketcher.Constraint("Vertical", 6))
sketch6.addConstraint(Sketcher.Constraint("Horizontal", 7))
sketch6.addConstraint(Sketcher.Constraint("Horizontal", 8))
sketch6.addConstraint(Sketcher.Constraint("Vertical", 9))
sketch6.addConstraint(Sketcher.Constraint("Horizontal", 10))
sketch6.addConstraint(Sketcher.Constraint("Vertical", 11))
sketch6.addConstraint(Sketcher.Constraint("Vertical", 12))
sketch6.addConstraint(Sketcher.Constraint("Horizontal", 13))
sketch6.addConstraint(Sketcher.Constraint("Vertical", 14))
sketch6.addConstraint(Sketcher.Constraint("Horizontal", 15))
sketch6.addConstraint(Sketcher.Constraint("Horizontal", 16))
sketch6.addConstraint(Sketcher.Constraint("Vertical", 17))
sketch6.addConstraint(Sketcher.Constraint("Horizontal", 18))
sketch6.addConstraint(Sketcher.Constraint("Vertical", 19))
sketch6.addConstraint(Sketcher.Constraint("Vertical", 20))
sketch6.addConstraint(Sketcher.Constraint("Horizontal", 21))
sketch6.addConstraint(Sketcher.Constraint("Vertical", 22))
sketch6.addConstraint(Sketcher.Constraint("Horizontal", 23))
sketch6.addConstraint(Sketcher.Constraint("Horizontal", 24))
sketch6.addConstraint(Sketcher.Constraint("Vertical", 25))
sketch6.addConstraint(Sketcher.Constraint("Horizontal", 26))
sketch6.addConstraint(Sketcher.Constraint("Vertical", 27))
sketch6.addConstraint(Sketcher.Constraint("Vertical", 28))
sketch6.addConstraint(Sketcher.Constraint("Horizontal", 29))
sketch6.addConstraint(Sketcher.Constraint("Vertical", 30))
sketch6.addConstraint(Sketcher.Constraint("Horizontal", 31))
sketch6.addConstraint(Sketcher.Constraint("Symmetric", 17, 2, 24, 2, -1, 1))
sketch6.addConstraint(Sketcher.Constraint("Symmetric", 1, 2, 8, 2, -1))
sketch6.addConstraint(Sketcher.Constraint("Symmetric", 3, 2, 10, 2, -1))
sketch6.addConstraint(Sketcher.Constraint("Symmetric", 7, 2, 12, 2, -1))
sketch6.addConstraint(Sketcher.Constraint("Symmetric", 5, 2, 14, 2, -1))
sketch6.addConstraint(Sketcher.Constraint("Symmetric", 16, 2, 25, 2, -1))
sketch6.addConstraint(Sketcher.Constraint("Symmetric", 23, 2, 28, 2, -1))
sketch6.addConstraint(Sketcher.Constraint("Symmetric", 21, 2, 30, 2, -1))
sketch6.addConstraint(Sketcher.Constraint("Horizontal", 3, 2, 16, 2))
sketch6.addConstraint(Sketcher.Constraint("Horizontal", 2, 2, 17, 2))
sketch6.addConstraint(Sketcher.Constraint("Horizontal", 5, 2, 20, 2))
sketch6.addConstraint(Sketcher.Constraint("Horizontal", 7, 2, 22, 2))
sketch6.addConstraint(Sketcher.Constraint("Vertical", 19, 2, 26, 2))
sketch6.addConstraint(Sketcher.Constraint("Equal", 10, 16))
sketch6.addConstraint(Sketcher.Constraint("Equal", 15, 21))
sketch6.addConstraint(Sketcher.Constraint("Equal", 26, 1))
sketch6.addConstraint(Sketcher.Constraint("Equal", 31, 4))
sketch6.addConstraint(Sketcher.Constraint("DistanceX", 0, 2, 0, 1, Q("1 in")))
sketch6.addConstraint(Sketcher.Constraint("DistanceX", -1, 1, 0, 2, Q("11 in")))
sketch6.addConstraint(Sketcher.Constraint("DistanceY", -1, 1, 0, 2, Q("10 in")))
sketch6.addConstraint(Sketcher.Constraint("DistanceX", 5, 1, 5, 2, Q("23.4 mm")))
sketch6.addConstraint(Sketcher.Constraint("DistanceX", -1, 1, 4, 2, Q("280.4 mm")))
sketch6.addConstraint(Sketcher.Constraint("DistanceY", -1, 1, 4, 2, Q("255 mm")))
sketch6.addConstraint(Sketcher.Constraint("DistanceX", -1, 1, 20, 2, Q("1 mm")))
sketch6.setExpression("Constraints[81]", "Params.sketch6_width")
pad6 = body.newObject("PartDesign::Pad", "Pad005")
pad6.Profile = sketch6
pad6.setExpression("Length", "Params.pad6_length")
pad6.Reversed = True
doc.recompute()

linearpattern = body.newObject("PartDesign::LinearPattern", "LinearPattern")
linearpattern.Originals = [pad5]
linearpattern.Direction = (doc.getObject("X_Axis"), [""])
linearpattern.Mode = "offset"
linearpattern.setExpression("Offset", "Params.linearpattern_pitch")
linearpattern.Occurrences = 2
linearpattern.Reversed = True
body.Tip = linearpattern

doc.recompute()
